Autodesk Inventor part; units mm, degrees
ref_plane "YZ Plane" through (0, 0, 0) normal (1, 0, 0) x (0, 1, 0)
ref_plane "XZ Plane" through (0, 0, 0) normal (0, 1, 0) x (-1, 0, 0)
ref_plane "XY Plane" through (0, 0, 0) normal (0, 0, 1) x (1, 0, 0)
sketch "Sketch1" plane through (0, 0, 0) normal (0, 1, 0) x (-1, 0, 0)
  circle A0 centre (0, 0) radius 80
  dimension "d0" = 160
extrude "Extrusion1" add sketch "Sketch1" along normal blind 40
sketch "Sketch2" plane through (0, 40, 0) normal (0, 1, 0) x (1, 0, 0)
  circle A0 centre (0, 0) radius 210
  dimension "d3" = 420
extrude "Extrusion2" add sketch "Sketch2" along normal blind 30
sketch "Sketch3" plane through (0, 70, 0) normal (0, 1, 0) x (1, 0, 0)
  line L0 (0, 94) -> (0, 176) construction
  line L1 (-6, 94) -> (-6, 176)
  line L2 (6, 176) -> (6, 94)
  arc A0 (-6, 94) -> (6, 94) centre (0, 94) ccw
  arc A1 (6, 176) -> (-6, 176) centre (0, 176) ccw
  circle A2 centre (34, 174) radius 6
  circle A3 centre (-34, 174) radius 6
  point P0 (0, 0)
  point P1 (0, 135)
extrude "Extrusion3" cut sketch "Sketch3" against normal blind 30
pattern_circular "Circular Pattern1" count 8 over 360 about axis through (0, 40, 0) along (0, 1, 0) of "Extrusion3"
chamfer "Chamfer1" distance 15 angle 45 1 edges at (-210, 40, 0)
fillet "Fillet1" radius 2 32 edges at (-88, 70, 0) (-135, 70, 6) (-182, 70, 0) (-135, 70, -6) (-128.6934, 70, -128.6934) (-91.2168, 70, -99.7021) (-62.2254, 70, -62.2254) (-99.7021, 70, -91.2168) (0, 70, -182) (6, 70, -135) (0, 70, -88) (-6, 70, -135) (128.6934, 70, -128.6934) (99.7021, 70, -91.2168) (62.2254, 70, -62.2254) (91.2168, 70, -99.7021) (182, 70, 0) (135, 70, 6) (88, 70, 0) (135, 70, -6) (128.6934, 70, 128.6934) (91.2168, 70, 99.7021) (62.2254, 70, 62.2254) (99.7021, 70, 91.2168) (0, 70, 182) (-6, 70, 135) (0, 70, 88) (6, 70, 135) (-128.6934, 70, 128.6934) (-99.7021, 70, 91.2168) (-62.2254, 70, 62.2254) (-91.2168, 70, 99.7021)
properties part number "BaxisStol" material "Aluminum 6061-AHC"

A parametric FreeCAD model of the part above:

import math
import FreeCAD as App
import Part
import Sketcher

V = App.Vector
Q = App.Units.Quantity


def edges_at(feature, points):
    """Names of the edges that pass closest to the given points."""
    edges = feature.Shape.Edges
    near = lambda p: min(range(len(edges)), key=lambda i: edges[i].distToShape(Part.Vertex(*p))[0])
    return sorted({f"Edge{near(p) + 1}" for p in points})

doc = App.newDocument("Part")
body = doc.addObject("PartDesign::Body", "Body")

# Sketch on XZ plane
sketch1 = body.newObject("Sketcher::SketchObject", "Sketch")
sketch1.AttachmentSupport = (doc.getObject("XZ_Plane"), [""])
sketch1.MapMode = "FlatFace"
sketch1.addGeometry(Part.Circle(V(0, 0, 0), V(0, 0, 1), 80), False)
sketch1.addConstraint([
    Sketcher.Constraint("Coincident", 0, 3, -1, 1),
    Sketcher.Constraint("Diameter", 0, Q("160 mm")),
])
pad1 = body.newObject("PartDesign::Pad", "Pad")
pad1.Profile = sketch1
pad1.Length = 40
pad1.Reversed = True

# Sketch on XZ plane
sketch2 = body.newObject("Sketcher::SketchObject", "Sketch001")
sketch2.AttachmentSupport = (doc.getObject("XZ_Plane"), [""])
sketch2.MapMode = "FlatFace"
sketch2.AttachmentOffset = App.Placement(V(0, 0, -40), App.Rotation())
sketch2.addGeometry(Part.Circle(V(0, 0, 0), V(0, 0, 1), 210), False)
sketch2.addConstraint([
    Sketcher.Constraint("Coincident", 0, 3, -1, 1),
    Sketcher.Constraint("Diameter", 0, Q("420 mm")),
])
pad2 = body.newObject("PartDesign::Pad", "Pad001")
pad2.Profile = sketch2
pad2.Length = 30
pad2.Reversed = True

# Sketch on XZ plane
sketch3 = body.newObject("Sketcher::SketchObject", "Sketch002")
sketch3.AttachmentSupport = (doc.getObject("XZ_Plane"), [""])
sketch3.MapMode = "FlatFace"
sketch3.AttachmentOffset = App.Placement(V(0, 0, -70), App.Rotation())
sketch3.addGeometry([
    Part.LineSegment(V(-6, -176, 0), V(-6, -94, 0)),  # 0
    Part.ArcOfCircle(Part.Circle(V(0, -94, 0), V(0, 0, 1), 6), math.radians(0), math.radians(180)),  # 1
    Part.LineSegment(V(6, -94, 0), V(6, -176, 0)),  # 2
    Part.ArcOfCircle(Part.Circle(V(0, -176, 0), V(0, 0, 1), 6), math.radians(180), math.radians(360)),  # 3
    Part.Circle(V(34, -174, 0), V(0, 0, 1), 6),  # 4
    Part.Circle(V(-34, -174, 0), V(0, 0, 1), 6),  # 5
], False)
sketch3.addConstraint([
    Sketcher.Constraint("Tangent", 0, 2, 1, 2),
    Sketcher.Constraint("Tangent", 1, 1, 2, 1),
    Sketcher.Constraint("Tangent", 2, 2, 3, 2),
    Sketcher.Constraint("Tangent", 3, 1, 0, 1),
    Sketcher.Constraint("Vertical", 0),
    Sketcher.Constraint("Vertical", 2),
    Sketcher.Constraint("Equal", 3, 4),
    Sketcher.Constraint("Equal", 4, 5),
    Sketcher.Constraint("Symmetric", 4, 3, 5, 3, -2),
    Sketcher.Constraint("PointOnObject", 1, 3, -2),
    Sketcher.Constraint("Diameter", 4, Q("12 mm")),
    Sketcher.Constraint("DistanceY", 0, 1, 0, 2, Q("82 mm")),
    Sketcher.Constraint("DistanceY", 1, 3, -1, 1, Q("94 mm")),
    Sketcher.Constraint("DistanceX", -1, 1, 4, 3, Q("34 mm")),
    Sketcher.Constraint("DistanceY", 4, 3, -1, 1, Q("174 mm")),
])
pocket1 = body.newObject("PartDesign::Pocket", "Pocket")
pocket1.Profile = sketch3
pocket1.Length = 30
pocket1.Reversed = True
doc.recompute()

polarpattern = body.newObject("PartDesign::PolarPattern", "PolarPattern")
polarpattern.Originals = [pocket1]
polarpattern.Axis = (doc.getObject("Y_Axis"), [""])
polarpattern.Angle = 360
polarpattern.Occurrences = 8
body.Tip = polarpattern
doc.recompute()

chamfer = body.newObject("PartDesign::Chamfer", "Chamfer")
chamfer.Base = (polarpattern, edges_at(polarpattern, [(-210, 40, 0)]))
chamfer.Size = 15
doc.recompute()

fillet = body.newObject("PartDesign::Fillet", "Fillet")
fillet.Base = (chamfer, edges_at(chamfer, [
    (-88, 70, 0),
    (-135, 70, 6),
    (-182, 70, 0),
    (-135, 70, -6),
    (-128.693, 70, -128.693),
    (-91.217, 70, -99.702),
    (-62.225, 70, -62.225),
    (-99.702, 70, -91.217),
    (0, 70, -182),
    (6, 70, -135),
    (0, 70, -88),
    (-6, 70, -135),
    (128.693, 70, -128.693),
    (99.702, 70, -91.217),
    (62.225, 70, -62.225),
    (91.217, 70, -99.702),
    (182, 70, 0),
    (135, 70, 6),
    (88, 70, 0),
    (135, 70, -6),
    (128.693, 70, 128.693),
    (91.217, 70, 99.702),
    (62.225, 70, 62.225),
    (99.702, 70, 91.217),
    (0, 70, 182),
    (-6, 70, 135),
    (0, 70, 88),
    (6, 70, 135),
    (-128.693, 70, 128.693),
    (-99.702, 70, 91.217),
    (-62.225, 70, 62.225),
    (-91.217, 70, 99.702),
]))
fillet.Radius = 2

doc.recompute()
